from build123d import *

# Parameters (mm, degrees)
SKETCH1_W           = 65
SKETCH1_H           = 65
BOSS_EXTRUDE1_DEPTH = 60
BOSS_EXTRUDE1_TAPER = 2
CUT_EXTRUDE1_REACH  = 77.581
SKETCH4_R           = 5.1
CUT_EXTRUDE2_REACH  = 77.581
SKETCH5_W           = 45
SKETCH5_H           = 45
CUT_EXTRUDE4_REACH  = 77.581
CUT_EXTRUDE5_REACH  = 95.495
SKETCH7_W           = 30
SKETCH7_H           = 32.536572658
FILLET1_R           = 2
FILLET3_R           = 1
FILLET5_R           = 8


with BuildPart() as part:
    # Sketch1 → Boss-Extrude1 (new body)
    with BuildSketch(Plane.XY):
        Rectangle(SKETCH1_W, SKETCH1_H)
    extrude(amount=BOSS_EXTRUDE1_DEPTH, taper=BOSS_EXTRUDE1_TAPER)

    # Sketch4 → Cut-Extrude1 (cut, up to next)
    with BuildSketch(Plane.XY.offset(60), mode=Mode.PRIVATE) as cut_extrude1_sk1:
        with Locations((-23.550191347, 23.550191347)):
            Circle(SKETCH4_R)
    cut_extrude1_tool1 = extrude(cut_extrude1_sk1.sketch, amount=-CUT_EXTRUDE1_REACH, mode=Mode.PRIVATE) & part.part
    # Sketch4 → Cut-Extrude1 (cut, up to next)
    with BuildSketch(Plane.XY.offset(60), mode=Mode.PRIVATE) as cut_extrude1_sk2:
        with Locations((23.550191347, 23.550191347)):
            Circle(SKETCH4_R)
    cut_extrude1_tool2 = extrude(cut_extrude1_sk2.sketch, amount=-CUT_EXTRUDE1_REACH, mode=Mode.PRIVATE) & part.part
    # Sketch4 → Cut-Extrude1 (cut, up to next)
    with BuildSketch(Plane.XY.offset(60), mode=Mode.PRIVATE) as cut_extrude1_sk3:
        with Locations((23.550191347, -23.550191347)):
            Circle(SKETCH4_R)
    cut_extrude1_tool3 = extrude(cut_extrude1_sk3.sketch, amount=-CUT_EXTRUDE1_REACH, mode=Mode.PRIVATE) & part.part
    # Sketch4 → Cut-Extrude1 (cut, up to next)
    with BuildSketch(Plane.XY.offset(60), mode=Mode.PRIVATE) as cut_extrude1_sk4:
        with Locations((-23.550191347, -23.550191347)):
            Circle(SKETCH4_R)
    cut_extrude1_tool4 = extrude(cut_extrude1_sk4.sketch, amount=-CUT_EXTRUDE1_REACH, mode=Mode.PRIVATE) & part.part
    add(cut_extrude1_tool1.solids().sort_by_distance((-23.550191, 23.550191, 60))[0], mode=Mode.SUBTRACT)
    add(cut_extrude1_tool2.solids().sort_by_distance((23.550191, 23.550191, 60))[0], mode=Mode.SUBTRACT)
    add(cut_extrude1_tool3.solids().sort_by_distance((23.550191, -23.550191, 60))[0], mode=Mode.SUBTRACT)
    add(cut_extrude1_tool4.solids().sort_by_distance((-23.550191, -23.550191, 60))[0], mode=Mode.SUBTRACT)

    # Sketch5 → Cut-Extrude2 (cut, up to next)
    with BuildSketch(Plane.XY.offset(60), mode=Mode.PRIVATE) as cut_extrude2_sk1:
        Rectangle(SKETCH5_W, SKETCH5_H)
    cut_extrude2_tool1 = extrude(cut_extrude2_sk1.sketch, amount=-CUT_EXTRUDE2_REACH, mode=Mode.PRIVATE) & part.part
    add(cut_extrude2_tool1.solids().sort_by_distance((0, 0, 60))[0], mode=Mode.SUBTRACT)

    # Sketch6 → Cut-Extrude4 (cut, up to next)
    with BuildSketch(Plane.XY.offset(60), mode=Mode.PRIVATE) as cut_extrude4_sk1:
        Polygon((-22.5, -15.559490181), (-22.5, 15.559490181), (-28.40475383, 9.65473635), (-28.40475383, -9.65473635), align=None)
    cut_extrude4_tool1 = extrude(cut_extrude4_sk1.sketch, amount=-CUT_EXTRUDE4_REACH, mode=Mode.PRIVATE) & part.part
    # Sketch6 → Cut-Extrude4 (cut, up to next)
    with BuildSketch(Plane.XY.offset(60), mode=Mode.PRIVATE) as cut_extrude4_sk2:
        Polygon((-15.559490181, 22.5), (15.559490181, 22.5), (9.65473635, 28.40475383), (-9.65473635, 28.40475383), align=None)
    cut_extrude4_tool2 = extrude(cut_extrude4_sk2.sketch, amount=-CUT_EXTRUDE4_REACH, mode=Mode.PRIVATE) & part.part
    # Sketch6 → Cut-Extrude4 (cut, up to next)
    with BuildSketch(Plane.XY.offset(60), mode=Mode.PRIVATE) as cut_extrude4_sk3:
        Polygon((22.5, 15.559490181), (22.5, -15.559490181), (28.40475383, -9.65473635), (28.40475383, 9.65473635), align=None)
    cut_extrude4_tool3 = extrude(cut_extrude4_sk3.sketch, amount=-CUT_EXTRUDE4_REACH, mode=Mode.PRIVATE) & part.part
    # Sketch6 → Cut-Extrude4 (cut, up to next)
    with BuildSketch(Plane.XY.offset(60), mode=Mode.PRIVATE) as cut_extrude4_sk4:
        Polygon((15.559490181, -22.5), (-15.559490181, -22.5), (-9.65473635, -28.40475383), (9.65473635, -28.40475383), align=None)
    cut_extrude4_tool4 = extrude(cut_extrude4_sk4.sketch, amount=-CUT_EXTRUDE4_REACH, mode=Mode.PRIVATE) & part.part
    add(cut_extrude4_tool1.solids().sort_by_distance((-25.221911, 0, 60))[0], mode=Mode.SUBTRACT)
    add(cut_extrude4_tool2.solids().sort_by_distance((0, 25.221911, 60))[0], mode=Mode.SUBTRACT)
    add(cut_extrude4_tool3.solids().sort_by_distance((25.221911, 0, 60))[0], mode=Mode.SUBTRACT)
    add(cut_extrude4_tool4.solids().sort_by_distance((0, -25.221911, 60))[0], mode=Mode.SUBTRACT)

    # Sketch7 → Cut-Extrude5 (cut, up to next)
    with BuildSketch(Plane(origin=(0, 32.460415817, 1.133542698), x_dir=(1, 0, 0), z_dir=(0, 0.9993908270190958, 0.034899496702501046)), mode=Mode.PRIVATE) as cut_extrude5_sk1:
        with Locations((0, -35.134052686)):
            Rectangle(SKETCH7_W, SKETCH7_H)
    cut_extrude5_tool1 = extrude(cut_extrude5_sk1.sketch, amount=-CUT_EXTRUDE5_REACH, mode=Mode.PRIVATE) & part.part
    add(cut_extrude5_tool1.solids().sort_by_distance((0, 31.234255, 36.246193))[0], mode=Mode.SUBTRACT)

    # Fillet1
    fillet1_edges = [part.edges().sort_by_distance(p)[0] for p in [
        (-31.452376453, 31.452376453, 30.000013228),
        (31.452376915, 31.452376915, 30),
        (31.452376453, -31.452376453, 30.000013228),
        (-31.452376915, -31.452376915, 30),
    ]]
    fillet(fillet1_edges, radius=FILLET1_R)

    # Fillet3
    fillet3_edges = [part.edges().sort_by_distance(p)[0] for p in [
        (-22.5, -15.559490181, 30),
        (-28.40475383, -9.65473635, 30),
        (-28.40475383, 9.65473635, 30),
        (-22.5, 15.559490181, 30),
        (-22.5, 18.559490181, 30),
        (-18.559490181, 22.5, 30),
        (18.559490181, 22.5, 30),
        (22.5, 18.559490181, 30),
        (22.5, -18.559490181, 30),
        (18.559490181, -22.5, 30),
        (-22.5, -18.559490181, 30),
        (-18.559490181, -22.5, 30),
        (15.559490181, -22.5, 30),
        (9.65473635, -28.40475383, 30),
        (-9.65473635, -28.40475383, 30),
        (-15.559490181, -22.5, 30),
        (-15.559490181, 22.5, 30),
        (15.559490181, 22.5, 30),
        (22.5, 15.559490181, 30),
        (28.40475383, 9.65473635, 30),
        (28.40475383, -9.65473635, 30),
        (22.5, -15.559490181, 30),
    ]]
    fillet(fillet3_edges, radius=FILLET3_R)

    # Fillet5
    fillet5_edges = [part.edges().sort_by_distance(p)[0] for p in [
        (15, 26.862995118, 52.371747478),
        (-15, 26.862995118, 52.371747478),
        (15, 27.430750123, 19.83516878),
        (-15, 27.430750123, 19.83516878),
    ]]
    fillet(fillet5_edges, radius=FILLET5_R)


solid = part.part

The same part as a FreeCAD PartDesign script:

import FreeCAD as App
import Part
import Sketcher
from FreeCAD import Vector
Q = App.Units.Quantity


def edges_at(feature, points):
    """Names of the edges that pass closest to the given points."""
    edges = feature.Shape.Edges
    near = lambda p: min(range(len(edges)), key=lambda i: edges[i].distToShape(Part.Vertex(*p))[0])
    return sorted({f"Edge{near(p) + 1}" for p in points})

doc = App.newDocument("Part")
body = doc.addObject("PartDesign::Body", "Body")

sketch1 = body.newObject("Sketcher::SketchObject", "Sketch")
sketch1.AttachmentSupport = (doc.getObject("XY_Plane"), [""])
sketch1.MapMode = "FlatFace"
sketch1.addGeometry([
    Part.LineSegment(Vector(-32, 32, 0), Vector(-32, -32, 0)),
    Part.LineSegment(Vector(-32, -32, 0), Vector(32, -32, 0)),
    Part.LineSegment(Vector(32, -32, 0), Vector(32, 32, 0)),
    Part.LineSegment(Vector(32, 32, 0), Vector(-32, 32, 0)),
], False)
sketch1.addConstraint([
    Sketcher.Constraint("Coincident", 0, 2, 1, 1),
    Sketcher.Constraint("Coincident", 1, 2, 2, 1),
    Sketcher.Constraint("Coincident", 2, 2, 3, 1),
    Sketcher.Constraint("Coincident", 3, 2, 0, 1),
    Sketcher.Constraint("Vertical", 0),
    Sketcher.Constraint("Horizontal", 1),
    Sketcher.Constraint("Vertical", 2),
    Sketcher.Constraint("Horizontal", 3),
    Sketcher.Constraint("Symmetric", 0, 2, 2, 2, -1, 1),
    Sketcher.Constraint("Equal", 3, 0),
    Sketcher.Constraint("DistanceX", 1, 1, 1, 2, Q("65 mm")),
])
pad1 = body.newObject("PartDesign::Pad", "Pad")
pad1.Profile = sketch1
pad1.Length = 60
pad1.TaperAngle = -2

sketch2 = body.newObject("Sketcher::SketchObject", "Sketch001")
sketch2.AttachmentSupport = (doc.getObject("XY_Plane"), [""])
sketch2.MapMode = "FlatFace"
sketch2.AttachmentOffset = App.Placement(Vector(0, 0, 60), App.Rotation())
sketch2.addGeometry(Part.Circle(Vector(-24, 24, 0), Vector(0, 0, 1), 5), False)
sketch2.addConstraint([
    Sketcher.Constraint("Diameter", 0, Q("10.2 mm")),
    Sketcher.Constraint("DistanceX", 0, 3, -1, 1, Q("23.550191 mm")),
    Sketcher.Constraint("DistanceY", -1, 1, 0, 3, Q("23.550191 mm")),
])
pocket1 = body.newObject("PartDesign::Pocket", "Pocket")
pocket1.Profile = sketch2
pocket1.Type = "UpToFirst"

sketch3 = body.newObject("Sketcher::SketchObject", "Sketch002")
sketch3.AttachmentSupport = (doc.getObject("XY_Plane"), [""])
sketch3.MapMode = "FlatFace"
sketch3.AttachmentOffset = App.Placement(Vector(0, 0, 60), App.Rotation())
sketch3.addGeometry(Part.Circle(Vector(24, 24, 0), Vector(0, 0, 1), 5), False)
sketch3.addConstraint([
    Sketcher.Constraint("Diameter", 0, Q("10.2 mm")),
    Sketcher.Constraint("DistanceX", -1, 1, 0, 3, Q("23.550191 mm")),
    Sketcher.Constraint("DistanceY", -1, 1, 0, 3, Q("23.550191 mm")),
])
pocket2 = body.newObject("PartDesign::Pocket", "Pocket001")
pocket2.Profile = sketch3
pocket2.Type = "UpToFirst"

sketch4 = body.newObject("Sketcher::SketchObject", "Sketch003")
sketch4.AttachmentSupport = (doc.getObject("XY_Plane"), [""])
sketch4.MapMode = "FlatFace"
sketch4.AttachmentOffset = App.Placement(Vector(0, 0, 60), App.Rotation())
sketch4.addGeometry(Part.Circle(Vector(24, -24, 0), Vector(0, 0, 1), 5), False)
sketch4.addConstraint([
    Sketcher.Constraint("Diameter", 0, Q("10.2 mm")),
    Sketcher.Constraint("DistanceX", -1, 1, 0, 3, Q("23.550191 mm")),
    Sketcher.Constraint("DistanceY", 0, 3, -1, 1, Q("23.550191 mm")),
])
pocket3 = body.newObject("PartDesign::Pocket", "Pocket002")
pocket3.Profile = sketch4
pocket3.Type = "UpToFirst"

sketch5 = body.newObject("Sketcher::SketchObject", "Sketch004")
sketch5.AttachmentSupport = (doc.getObject("XY_Plane"), [""])
sketch5.MapMode = "FlatFace"
sketch5.AttachmentOffset = App.Placement(Vector(0, 0, 60), App.Rotation())
sketch5.addGeometry(Part.Circle(Vector(-24, -24, 0), Vector(0, 0, 1), 5), False)
sketch5.addConstraint([
    Sketcher.Constraint("Diameter", 0, Q("10.2 mm")),
    Sketcher.Constraint("DistanceX", 0, 3, -1, 1, Q("23.550191 mm")),
    Sketcher.Constraint("DistanceY", 0, 3, -1, 1, Q("23.550191 mm")),
])
pocket4 = body.newObject("PartDesign::Pocket", "Pocket003")
pocket4.Profile = sketch5
pocket4.Type = "UpToFirst"

sketch6 = body.newObject("Sketcher::SketchObject", "Sketch005")
sketch6.AttachmentSupport = (doc.getObject("XY_Plane"), [""])
sketch6.MapMode = "FlatFace"
sketch6.AttachmentOffset = App.Placement(Vector(0, 0, 60), App.Rotation())
sketch6.addGeometry([
    Part.LineSegment(Vector(-22, 22, 0), Vector(-22, -22, 0)),
    Part.LineSegment(Vector(-22, -22, 0), Vector(22, -22, 0)),
    Part.LineSegment(Vector(22, -22, 0), Vector(22, 22, 0)),
    Part.LineSegment(Vector(22, 22, 0), Vector(-22, 22, 0)),
], False)
sketch6.addConstraint([
    Sketcher.Constraint("Coincident", 0, 2, 1, 1),
    Sketcher.Constraint("Coincident", 1, 2, 2, 1),
    Sketcher.Constraint("Coincident", 2, 2, 3, 1),
    Sketcher.Constraint("Coincident", 3, 2, 0, 1),
    Sketcher.Constraint("Vertical", 0),
    Sketcher.Constraint("Horizontal", 1),
    Sketcher.Constraint("Vertical", 2),
    Sketcher.Constraint("Horizontal", 3),
    Sketcher.Constraint("Symmetric", 0, 2, 2, 2, -1, 1),
    Sketcher.Constraint("Equal", 3, 0),
    Sketcher.Constraint("DistanceX", 1, 1, 1, 2, Q("45 mm")),
])
pocket5 = body.newObject("PartDesign::Pocket", "Pocket004")
pocket5.Profile = sketch6
pocket5.Type = "UpToFirst"

sketch7 = body.newObject("Sketcher::SketchObject", "Sketch006")
sketch7.AttachmentSupport = (doc.getObject("XY_Plane"), [""])
sketch7.MapMode = "FlatFace"
sketch7.AttachmentOffset = App.Placement(Vector(0, 0, 60), App.Rotation())
sketch7.addGeometry([
    Part.LineSegment(Vector(-22, -16, 0), Vector(-22, 16, 0)),
    Part.LineSegment(Vector(-22, 16, 0), Vector(-28, 10, 0)),
    Part.LineSegment(Vector(-28, 10, 0), Vector(-28, -10, 0)),
    Part.LineSegment(Vector(-28, -10, 0), Vector(-22, -16, 0)),
], False)
sketch7.addConstraint([
    Sketcher.Constraint("Coincident", 0, 2, 1, 1),
    Sketcher.Constraint("Coincident", 1, 2, 2, 1),
    Sketcher.Constraint("Coincident", 2, 2, 3, 1),
    Sketcher.Constraint("Coincident", 3, 2, 0, 1),
    Sketcher.Constraint("Vertical", 0),
    Sketcher.Constraint("Vertical", 2),
    Sketcher.Constraint("Perpendicular", 1, 3),
    Sketcher.Constraint("Equal", 1, 3),
    Sketcher.Constraint("DistanceX", 0, 2, -1, 1, Q("22.5 mm")),
    Sketcher.Constraint("DistanceY", 0, 1, 0, 2, Q("31.11898 mm")),
    Sketcher.Constraint("DistanceY", 2, 2, 2, 1, Q("19.309473 mm")),
    Sketcher.Constraint("DistanceY", -1, 1, 0, 2, Q("15.55949 mm")),
])
pocket6 = body.newObject("PartDesign::Pocket", "Pocket005")
pocket6.Profile = sketch7
pocket6.Type = "UpToFirst"

sketch8 = body.newObject("Sketcher::SketchObject", "Sketch007")
sketch8.AttachmentSupport = (doc.getObject("XY_Plane"), [""])
sketch8.MapMode = "FlatFace"
sketch8.AttachmentOffset = App.Placement(Vector(0, 0, 60), App.Rotation())
sketch8.addGeometry([
    Part.LineSegment(Vector(-16, 22, 0), Vector(16, 22, 0)),
    Part.LineSegment(Vector(16, 22, 0), Vector(10, 28, 0)),
    Part.LineSegment(Vector(10, 28, 0), Vector(-10, 28, 0)),
    Part.LineSegment(Vector(-10, 28, 0), Vector(-16, 22, 0)),
], False)
sketch8.addConstraint([
    Sketcher.Constraint("Coincident", 0, 2, 1, 1),
    Sketcher.Constraint("Coincident", 1, 2, 2, 1),
    Sketcher.Constraint("Coincident", 2, 2, 3, 1),
    Sketcher.Constraint("Coincident", 3, 2, 0, 1),
    Sketcher.Constraint("Horizontal", 0),
    Sketcher.Constraint("Horizontal", 2),
    Sketcher.Constraint("Perpendicular", 1, 3),
    Sketcher.Constraint("Equal", 1, 3),
    Sketcher.Constraint("DistanceY", -1, 1, 0, 2, Q("22.5 mm")),
    Sketcher.Constraint("DistanceX", 0, 1, 0, 2, Q("31.11898 mm")),
    Sketcher.Constraint("DistanceX", 2, 2, 2, 1, Q("19.309473 mm")),
    Sketcher.Constraint("DistanceX", -1, 1, 0, 2, Q("15.55949 mm")),
])
pocket7 = body.newObject("PartDesign::Pocket", "Pocket006")
pocket7.Profile = sketch8
pocket7.Type = "UpToFirst"

sketch9 = body.newObject("Sketcher::SketchObject", "Sketch008")
sketch9.AttachmentSupport = (doc.getObject("XY_Plane"), [""])
sketch9.MapMode = "FlatFace"
sketch9.AttachmentOffset = App.Placement(Vector(0, 0, 60), App.Rotation())
sketch9.addGeometry([
    Part.LineSegment(Vector(22, 16, 0), Vector(22, -16, 0)),
    Part.LineSegment(Vector(22, -16, 0), Vector(28, -10, 0)),
    Part.LineSegment(Vector(28, -10, 0), Vector(28, 10, 0)),
    Part.LineSegment(Vector(28, 10, 0), Vector(22, 16, 0)),
], False)
sketch9.addConstraint([
    Sketcher.Constraint("Coincident", 0, 2, 1, 1),
    Sketcher.Constraint("Coincident", 1, 2, 2, 1),
    Sketcher.Constraint("Coincident", 2, 2, 3, 1),
    Sketcher.Constraint("Coincident", 3, 2, 0, 1),
    Sketcher.Constraint("Vertical", 0),
    Sketcher.Constraint("Vertical", 2),
    Sketcher.Constraint("Perpendicular", 1, 3),
    Sketcher.Constraint("Equal", 1, 3),
    Sketcher.Constraint("DistanceX", -1, 1, 0, 2, Q("22.5 mm")),
    Sketcher.Constraint("DistanceY", 0, 2, 0, 1, Q("31.11898 mm")),
    Sketcher.Constraint("DistanceY", 2, 1, 2, 2, Q("19.309473 mm")),
    Sketcher.Constraint("DistanceY", 0, 2, -1, 1, Q("15.55949 mm")),
])
pocket8 = body.newObject("PartDesign::Pocket", "Pocket007")
pocket8.Profile = sketch9
pocket8.Type = "UpToFirst"

sketch10 = body.newObject("Sketcher::SketchObject", "Sketch009")
sketch10.AttachmentSupport = (doc.getObject("XY_Plane"), [""])
sketch10.MapMode = "FlatFace"
sketch10.AttachmentOffset = App.Placement(Vector(0, 0, 60), App.Rotation())
sketch10.addGeometry([
    Part.LineSegment(Vector(16, -22, 0), Vector(-16, -22, 0)),
    Part.LineSegment(Vector(-16, -22, 0), Vector(-10, -28, 0)),
    Part.LineSegment(Vector(-10, -28, 0), Vector(10, -28, 0)),
    Part.LineSegment(Vector(10, -28, 0), Vector(16, -22, 0)),
], False)
sketch10.addConstraint([
    Sketcher.Constraint("Coincident", 0, 2, 1, 1),
    Sketcher.Constraint("Coincident", 1, 2, 2, 1),
    Sketcher.Constraint("Coincident", 2, 2, 3, 1),
    Sketcher.Constraint("Coincident", 3, 2, 0, 1),
    Sketcher.Constraint("Horizontal", 0),
    Sketcher.Constraint("Horizontal", 2),
    Sketcher.Constraint("Perpendicular", 1, 3),
    Sketcher.Constraint("Equal", 1, 3),
    Sketcher.Constraint("DistanceY", 0, 2, -1, 1, Q("22.5 mm")),
    Sketcher.Constraint("DistanceX", 0, 2, 0, 1, Q("31.11898 mm")),
    Sketcher.Constraint("DistanceX", 2, 1, 2, 2, Q("19.309473 mm")),
    Sketcher.Constraint("DistanceX", 0, 2, -1, 1, Q("15.55949 mm")),
])
pocket9 = body.newObject("PartDesign::Pocket", "Pocket008")
pocket9.Profile = sketch10
pocket9.Type = "UpToFirst"

sketch11 = body.newObject("Sketcher::SketchObject", "Sketch010")
sketch11.Placement = App.Placement(Vector(0, 32.460416, 1.133543), App.Rotation(Vector(1, 0, 0), Vector(0, 0.034899497, -0.999390827), Vector(0, 0.999390827, 0.034899497), "ZXY"))
sketch11.addGeometry([
    Part.LineSegment(Vector(-15, -19, 0), Vector(-15, -51, 0)),
    Part.LineSegment(Vector(-15, -51, 0), Vector(15, -51, 0)),
    Part.LineSegment(Vector(15, -51, 0), Vector(15, -19, 0)),
    Part.LineSegment(Vector(15, -19, 0), Vector(-15, -19, 0)),
], False)
sketch11.addConstraint([
    Sketcher.Constraint("Coincident", 0, 2, 1, 1),
    Sketcher.Constraint("Coincident", 1, 2, 2, 1),
    Sketcher.Constraint("Coincident", 2, 2, 3, 1),
    Sketcher.Constraint("Coincident", 3, 2, 0, 1),
    Sketcher.Constraint("Vertical", 0),
    Sketcher.Constraint("Horizontal", 1),
    Sketcher.Constraint("Vertical", 2),
    Sketcher.Constraint("Horizontal", 3),
    Sketcher.Constraint("DistanceX", 1, 1, 1, 2, Q("30 mm")),
    Sketcher.Constraint("DistanceX", 0, 2, -1, 1, Q("15 mm")),
    Sketcher.Constraint("DistanceY", 0, 2, 0, 1, Q("32.536573 mm")),
    Sketcher.Constraint("DistanceY", 0, 2, -1, 1, Q("51.402339 mm")),
])
pocket10 = body.newObject("PartDesign::Pocket", "Pocket009")
pocket10.Profile = sketch11
pocket10.Length = 8.747849
doc.recompute()

fillet = body.newObject("PartDesign::Fillet", "Fillet")
fillet.Base = (pocket10, edges_at(pocket10, [
    (-31.452, 31.452, 30),
    (31.452, 31.452, 30),
    (31.452, -31.452, 30),
    (-31.452, -31.452, 30),
]))
fillet.Radius = 2
doc.recompute()

fillet2 = body.newObject("PartDesign::Fillet", "Fillet001")
fillet2.Base = (fillet, edges_at(fillet, [
    (-22.5, -15.559, 30),
    (-28.405, -9.655, 30),
    (-28.405, 9.655, 30),
    (-22.5, 15.559, 30),
    (-22.5, 18.559, 30),
    (-18.559, 22.5, 30),
    (18.559, 22.5, 30),
    (22.5, 18.559, 30),
    (22.5, -18.559, 30),
    (18.559, -22.5, 30),
    (-22.5, -18.559, 30),
    (-18.559, -22.5, 30),
    (15.559, -22.5, 30),
    (9.655, -28.405, 30),
    (-9.655, -28.405, 30),
    (-15.559, -22.5, 30),
    (-15.559, 22.5, 30),
    (15.559, 22.5, 30),
    (22.5, 15.559, 30),
    (28.405, 9.655, 30),
    (28.405, -9.655, 30),
    (22.5, -15.559, 30),
]))
fillet2.Radius = 1
doc.recompute()

fillet3 = body.newObject("PartDesign::Fillet", "Fillet002")
fillet3.Base = (fillet2, edges_at(fillet2, [
    (15, 26.863, 52.372),
    (-15, 26.863, 52.372),
    (15, 27.431, 19.835),
    (-15, 27.431, 19.835),
]))
fillet3.Radius = 8

doc.recompute()
